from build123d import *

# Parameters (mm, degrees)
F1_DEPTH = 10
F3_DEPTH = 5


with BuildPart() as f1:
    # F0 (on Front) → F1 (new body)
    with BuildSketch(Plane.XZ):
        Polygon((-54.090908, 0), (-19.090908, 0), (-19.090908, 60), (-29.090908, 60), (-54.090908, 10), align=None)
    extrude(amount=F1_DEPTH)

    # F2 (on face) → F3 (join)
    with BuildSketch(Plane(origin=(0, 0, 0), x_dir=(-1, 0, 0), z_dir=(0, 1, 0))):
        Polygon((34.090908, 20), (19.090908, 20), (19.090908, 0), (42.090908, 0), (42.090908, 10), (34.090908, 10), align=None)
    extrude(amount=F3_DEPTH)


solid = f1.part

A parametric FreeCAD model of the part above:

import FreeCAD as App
import Part
import Sketcher

V = App.Vector

doc = App.newDocument("Part")
body = doc.addObject("PartDesign::Body", "Body")

# Sketch on XZ plane
sketch1 = doc.addObject("Sketcher::SketchObject", "Sketch")
body.addObject(sketch1)
sketch1.AttachmentSupport = (doc.XZ_Plane, [""])
sketch1.MapMode = "FlatFace"
sketch1.addGeometry(Part.LineSegment(V(-54, 0, 0), V(-19, 0, 0)), False)
sketch1.addGeometry(Part.LineSegment(V(-19, 0, 0), V(-19, 60, 0)), False)
sketch1.addGeometry(Part.LineSegment(V(-19, 60, 0), V(-29, 60, 0)), False)
sketch1.addGeometry(Part.LineSegment(V(-29, 60, 0), V(-54, 10, 0)), False)
sketch1.addGeometry(Part.LineSegment(V(-54, 10, 0), V(-54, 0, 0)), False)
sketch1.addConstraint(Sketcher.Constraint("Coincident", 0, 2, 1, 1))
sketch1.addConstraint(Sketcher.Constraint("Coincident", 1, 2, 2, 1))
sketch1.addConstraint(Sketcher.Constraint("Coincident", 2, 2, 3, 1))
sketch1.addConstraint(Sketcher.Constraint("Coincident", 3, 2, 4, 1))
sketch1.addConstraint(Sketcher.Constraint("Coincident", 4, 2, 0, 1))
sketch1.addConstraint(Sketcher.Constraint("Horizontal", 0))
sketch1.addConstraint(Sketcher.Constraint("Vertical", 1))
sketch1.addConstraint(Sketcher.Constraint("Horizontal", 2))
sketch1.addConstraint(Sketcher.Constraint("Vertical", 4))
sketch1.addConstraint(Sketcher.Constraint("PointOnObject", 0, 2, -1))
sketch1.addConstraint(Sketcher.Constraint("Equal", 2, 4))
sketch1.addConstraint(Sketcher.Constraint("DistanceX", 0, 1, 0, 2, 35.0))
sketch1.addConstraint(Sketcher.Constraint("DistanceX", 2, 2, 2, 1, 10.0))
sketch1.addConstraint(Sketcher.Constraint("DistanceY", 1, 1, 1, 2, 60.0))
sketch1.addConstraint(Sketcher.Constraint("DistanceX", 0, 2, -1, 1, 19.090908))
pad1 = doc.addObject("PartDesign::Pad", "Pad")
body.addObject(pad1)
pad1.Profile = sketch1
pad1.Length = 10

# Sketch on XZ plane
sketch2 = doc.addObject("Sketcher::SketchObject", "Sketch001")
body.addObject(sketch2)
sketch2.AttachmentSupport = (doc.XZ_Plane, [""])
sketch2.MapMode = "FlatFace"
sketch2.addGeometry(Part.LineSegment(V(-34, 20, 0), V(-19, 20, 0)), False)
sketch2.addGeometry(Part.LineSegment(V(-19, 20, 0), V(-19, 0, 0)), False)
sketch2.addGeometry(Part.LineSegment(V(-19, 0, 0), V(-42, 0, 0)), False)
sketch2.addGeometry(Part.LineSegment(V(-42, 0, 0), V(-42, 10, 0)), False)
sketch2.addGeometry(Part.LineSegment(V(-42, 10, 0), V(-34, 10, 0)), False)
sketch2.addGeometry(Part.LineSegment(V(-34, 10, 0), V(-34, 20, 0)), False)
sketch2.addConstraint(Sketcher.Constraint("Coincident", 0, 2, 1, 1))
sketch2.addConstraint(Sketcher.Constraint("Coincident", 1, 2, 2, 1))
sketch2.addConstraint(Sketcher.Constraint("Coincident", 2, 2, 3, 1))
sketch2.addConstraint(Sketcher.Constraint("Coincident", 3, 2, 4, 1))
sketch2.addConstraint(Sketcher.Constraint("Coincident", 4, 2, 5, 1))
sketch2.addConstraint(Sketcher.Constraint("Coincident", 5, 2, 0, 1))
sketch2.addConstraint(Sketcher.Constraint("Horizontal", 0))
sketch2.addConstraint(Sketcher.Constraint("Vertical", 1))
sketch2.addConstraint(Sketcher.Constraint("Horizontal", 2))
sketch2.addConstraint(Sketcher.Constraint("Vertical", 3))
sketch2.addConstraint(Sketcher.Constraint("Horizontal", 4))
sketch2.addConstraint(Sketcher.Constraint("Vertical", 5))
sketch2.addConstraint(Sketcher.Constraint("PointOnObject", 1, 2, -1))
sketch2.addConstraint(Sketcher.Constraint("Equal", 3, 5))
sketch2.addConstraint(Sketcher.Constraint("DistanceX", 0, 1, 0, 2, 15.0))
sketch2.addConstraint(Sketcher.Constraint("DistanceX", 2, 2, 2, 1, 23.0))
sketch2.addConstraint(Sketcher.Constraint("DistanceY", 1, 2, 1, 1, 20.0))
sketch2.addConstraint(Sketcher.Constraint("DistanceX", 0, 2, -1, 1, 19.090908))
pad2 = doc.addObject("PartDesign::Pad", "Pad001")
body.addObject(pad2)
pad2.Profile = sketch2
pad2.Length = 5
pad2.Reversed = True

doc.recompute()
